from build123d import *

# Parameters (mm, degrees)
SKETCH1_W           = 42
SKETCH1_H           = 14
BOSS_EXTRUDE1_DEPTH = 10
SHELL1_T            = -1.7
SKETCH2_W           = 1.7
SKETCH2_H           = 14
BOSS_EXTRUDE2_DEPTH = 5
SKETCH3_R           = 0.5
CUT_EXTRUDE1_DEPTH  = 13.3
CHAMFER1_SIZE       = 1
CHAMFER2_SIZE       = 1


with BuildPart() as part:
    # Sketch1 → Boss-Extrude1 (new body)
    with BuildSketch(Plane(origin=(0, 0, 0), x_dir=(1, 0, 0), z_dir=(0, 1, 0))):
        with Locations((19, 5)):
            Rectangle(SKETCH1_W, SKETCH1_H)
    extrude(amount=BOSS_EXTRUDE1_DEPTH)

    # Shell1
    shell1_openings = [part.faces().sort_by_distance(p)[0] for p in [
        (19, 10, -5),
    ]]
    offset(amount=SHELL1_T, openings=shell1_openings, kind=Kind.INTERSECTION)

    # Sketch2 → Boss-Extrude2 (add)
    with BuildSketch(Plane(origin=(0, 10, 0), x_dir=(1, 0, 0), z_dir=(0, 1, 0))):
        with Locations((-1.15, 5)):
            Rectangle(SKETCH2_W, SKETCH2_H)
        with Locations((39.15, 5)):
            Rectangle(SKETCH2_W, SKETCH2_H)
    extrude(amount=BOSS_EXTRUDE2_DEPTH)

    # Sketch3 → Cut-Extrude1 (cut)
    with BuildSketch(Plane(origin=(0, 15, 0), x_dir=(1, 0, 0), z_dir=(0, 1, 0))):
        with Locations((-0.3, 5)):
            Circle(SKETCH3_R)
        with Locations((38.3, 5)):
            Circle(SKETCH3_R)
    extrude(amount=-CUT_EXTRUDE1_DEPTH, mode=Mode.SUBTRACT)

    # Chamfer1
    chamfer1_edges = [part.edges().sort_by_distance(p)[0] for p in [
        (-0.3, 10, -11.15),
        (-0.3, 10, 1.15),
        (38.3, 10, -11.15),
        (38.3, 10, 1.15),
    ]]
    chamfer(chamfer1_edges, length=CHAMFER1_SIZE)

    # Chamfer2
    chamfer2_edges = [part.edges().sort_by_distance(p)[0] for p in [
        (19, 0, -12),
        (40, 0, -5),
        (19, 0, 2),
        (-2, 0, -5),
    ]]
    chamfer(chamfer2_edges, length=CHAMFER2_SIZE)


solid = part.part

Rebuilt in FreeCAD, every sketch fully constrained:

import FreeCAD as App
import Part
import Sketcher
Q = App.Units.Quantity


def edges_at(feature, points):
    """Names of the edges that pass closest to the given points."""
    edges = feature.Shape.Edges
    near = lambda p: min(range(len(edges)), key=lambda i: edges[i].distToShape(Part.Vertex(*p))[0])
    return sorted({f"Edge{near(p) + 1}" for p in points})


def faces_at(feature, points):
    """Names of the faces that lie closest to the given points."""
    faces = feature.Shape.Faces
    near = lambda p: min(range(len(faces)), key=lambda i: faces[i].distToShape(Part.Vertex(*p))[0])
    return sorted({f"Face{near(p) + 1}" for p in points})


def add_polygon(sketch, points):
    """Adds a closed chain of lines whose ends are joined by coincident constraints."""
    first, n = sketch.GeometryCount, len(points)
    for a, b in zip(points, points[1:] + points[:1]):
        sketch.addGeometry(Part.LineSegment(App.Vector(*a, 0), App.Vector(*b, 0)), False)
    for i in range(n):
        sketch.addConstraint(Sketcher.Constraint("Coincident", first + i, 2, first + (i + 1) % n, 1))

doc = App.newDocument("Part")
body = doc.addObject("PartDesign::Body", "Body")

# Sketch on XZ plane
sketch1 = doc.addObject("Sketcher::SketchObject", "Sketch")
body.addObject(sketch1)
sketch1.AttachmentSupport = (doc.XZ_Plane, [""])
sketch1.MapMode = "FlatFace"
add_polygon(sketch1, [(-2, -12), (-2, 2), (40, 2), (40, -12)])  # lines 0-3
sketch1.addConstraint(Sketcher.Constraint("Vertical", 0))
sketch1.addConstraint(Sketcher.Constraint("Horizontal", 1))
sketch1.addConstraint(Sketcher.Constraint("Vertical", 2))
sketch1.addConstraint(Sketcher.Constraint("Horizontal", 3))
sketch1.addConstraint(Sketcher.Constraint("DistanceX", 1, 1, 1, 2, Q("42 mm")))
sketch1.addConstraint(Sketcher.Constraint("DistanceY", 0, 1, 0, 2, Q("14 mm")))
sketch1.addConstraint(Sketcher.Constraint("DistanceX", 0, 2, -1, 1, Q("2 mm")))
sketch1.addConstraint(Sketcher.Constraint("DistanceY", -1, 1, 0, 2, Q("2 mm")))
pad1 = doc.addObject("PartDesign::Pad", "Pad")
body.addObject(pad1)
pad1.Profile = sketch1
pad1.Length = 10
pad1.Reversed = True
doc.recompute()

thickness = doc.addObject("PartDesign::Thickness", "Thickness")
body.addObject(thickness)
thickness.Base = (pad1, faces_at(pad1, [(19, 10, -5)]))
thickness.Value = 1.7
thickness.Reversed = True
thickness.Join = "Intersection"

# Sketch on XZ plane
sketch2 = doc.addObject("Sketcher::SketchObject", "Sketch001")
body.addObject(sketch2)
sketch2.AttachmentSupport = (doc.XZ_Plane, [""])
sketch2.MapMode = "FlatFace"
sketch2.AttachmentOffset = App.Placement(App.Vector(0, 0, -10), App.Rotation())
add_polygon(sketch2, [(-2, -12), (-2, 2), (-0.3, 2), (-0.3, -12)])  # lines 0-3
add_polygon(sketch2, [(38.3, -12), (38.3, 2), (40, 2), (40, -12)])  # lines 4-7
sketch2.addConstraint(Sketcher.Constraint("Vertical", 0))
sketch2.addConstraint(Sketcher.Constraint("Horizontal", 1))
sketch2.addConstraint(Sketcher.Constraint("Vertical", 2))
sketch2.addConstraint(Sketcher.Constraint("Horizontal", 3))
sketch2.addConstraint(Sketcher.Constraint("Vertical", 4))
sketch2.addConstraint(Sketcher.Constraint("Horizontal", 5))
sketch2.addConstraint(Sketcher.Constraint("Vertical", 6))
sketch2.addConstraint(Sketcher.Constraint("Horizontal", 7))
sketch2.addConstraint(Sketcher.Constraint("Horizontal", 1, 2, 4, 2))
sketch2.addConstraint(Sketcher.Constraint("Horizontal", 3, 2, 6, 2))
sketch2.addConstraint(Sketcher.Constraint("Equal", 3, 5))
sketch2.addConstraint(Sketcher.Constraint("DistanceY", 0, 1, 0, 2, Q("14 mm")))
sketch2.addConstraint(Sketcher.Constraint("DistanceX", 1, 1, 1, 2, Q("1.7 mm")))
sketch2.addConstraint(Sketcher.Constraint("DistanceX", 0, 2, -1, 1, Q("2 mm")))
sketch2.addConstraint(Sketcher.Constraint("DistanceY", -1, 1, 0, 2, Q("2 mm")))
sketch2.addConstraint(Sketcher.Constraint("DistanceX", -1, 1, 5, 2, Q("40 mm")))
pad2 = doc.addObject("PartDesign::Pad", "Pad001")
body.addObject(pad2)
pad2.Profile = sketch2
pad2.Length = 5
pad2.Reversed = True

# Sketch on XZ plane
sketch3 = doc.addObject("Sketcher::SketchObject", "Sketch002")
body.addObject(sketch3)
sketch3.AttachmentSupport = (doc.XZ_Plane, [""])
sketch3.MapMode = "FlatFace"
sketch3.AttachmentOffset = App.Placement(App.Vector(0, 0, -15), App.Rotation())
sketch3.addGeometry(Part.Circle(App.Vector(-0.3, -5, 0), App.Vector(0, 0, 1), 0.5), False)
sketch3.addGeometry(Part.Circle(App.Vector(38.3, -5, 0), App.Vector(0, 0, 1), 0.5), False)
sketch3.addConstraint(Sketcher.Constraint("Equal", 0, 1))
sketch3.addConstraint(Sketcher.Constraint("Horizontal", 0, 3, 1, 3))
sketch3.addConstraint(Sketcher.Constraint("Diameter", 0, Q("1 mm")))
sketch3.addConstraint(Sketcher.Constraint("DistanceY", 0, 3, -1, 1, Q("5 mm")))
sketch3.addConstraint(Sketcher.Constraint("DistanceX", 0, 3, -1, 1, Q("0.3 mm")))
sketch3.addConstraint(Sketcher.Constraint("DistanceX", -1, 1, 1, 3, Q("38.3 mm")))
pocket1 = doc.addObject("PartDesign::Pocket", "Pocket")
body.addObject(pocket1)
pocket1.Profile = sketch3
pocket1.Length = 13.3
pocket1.Reversed = True
doc.recompute()

chamfer = doc.addObject("PartDesign::Chamfer", "Chamfer")
body.addObject(chamfer)
chamfer.Base = (pocket1, edges_at(pocket1, [
    (-0.3, 10, -11.15),
    (-0.3, 10, 1.15),
    (38.3, 10, -11.15),
    (38.3, 10, 1.15),
]))
chamfer.Size = 1
doc.recompute()

chamfer2 = doc.addObject("PartDesign::Chamfer", "Chamfer001")
body.addObject(chamfer2)
chamfer2.Base = (chamfer, edges_at(chamfer, [
    (19, 0, -12),
    (40, 0, -5),
    (19, 0, 2),
    (-2, 0, -5),
]))
chamfer2.Size = 1

doc.recompute()
